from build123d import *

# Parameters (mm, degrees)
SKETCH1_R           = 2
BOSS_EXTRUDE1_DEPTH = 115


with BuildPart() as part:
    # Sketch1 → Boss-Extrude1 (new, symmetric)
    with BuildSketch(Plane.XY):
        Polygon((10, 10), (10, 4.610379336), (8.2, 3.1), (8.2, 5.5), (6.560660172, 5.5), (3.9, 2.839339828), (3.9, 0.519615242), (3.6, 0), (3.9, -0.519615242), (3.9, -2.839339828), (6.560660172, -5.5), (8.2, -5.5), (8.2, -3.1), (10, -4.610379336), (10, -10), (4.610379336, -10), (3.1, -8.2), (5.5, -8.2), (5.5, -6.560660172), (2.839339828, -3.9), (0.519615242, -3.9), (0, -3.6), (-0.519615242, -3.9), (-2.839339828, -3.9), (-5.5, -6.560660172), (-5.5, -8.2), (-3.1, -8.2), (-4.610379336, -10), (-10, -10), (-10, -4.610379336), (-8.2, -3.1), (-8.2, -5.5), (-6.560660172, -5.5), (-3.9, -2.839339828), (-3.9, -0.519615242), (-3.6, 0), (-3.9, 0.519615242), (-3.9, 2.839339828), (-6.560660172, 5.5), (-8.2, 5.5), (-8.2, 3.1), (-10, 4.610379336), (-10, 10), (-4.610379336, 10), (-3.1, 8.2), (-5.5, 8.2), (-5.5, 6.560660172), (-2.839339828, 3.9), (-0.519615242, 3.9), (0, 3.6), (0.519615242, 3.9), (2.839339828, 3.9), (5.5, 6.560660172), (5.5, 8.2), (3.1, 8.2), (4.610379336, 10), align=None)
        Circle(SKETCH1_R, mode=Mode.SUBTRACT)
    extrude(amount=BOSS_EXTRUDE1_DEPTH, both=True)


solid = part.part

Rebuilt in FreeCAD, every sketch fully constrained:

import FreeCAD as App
import Part
import Sketcher

V = App.Vector
Q = App.Units.Quantity

doc = App.newDocument("Part")
body = doc.addObject("PartDesign::Body", "Body")

# Sketch on XY plane
sketch1 = doc.addObject("Sketcher::SketchObject", "Sketch")
body.addObject(sketch1)
sketch1.AttachmentSupport = (doc.XY_Plane, [""])
sketch1.MapMode = "FlatFace"
sketch1.addGeometry(Part.LineSegment(V(10, 4.6, 0), V(10, 10, 0)), False)
sketch1.addGeometry(Part.LineSegment(V(10, 10, 0), V(4.6, 10, 0)), False)
sketch1.addGeometry(Part.LineSegment(V(4.6, 10, 0), V(3.1, 8.2, 0)), False)
sketch1.addGeometry(Part.LineSegment(V(3.1, 8.2, 0), V(5.5, 8.2, 0)), False)
sketch1.addGeometry(Part.LineSegment(V(5.5, 8.2, 0), V(5.5, 6.6, 0)), False)
sketch1.addGeometry(Part.LineSegment(V(5.5, 6.6, 0), V(2.8, 3.9, 0)), False)
sketch1.addGeometry(Part.LineSegment(V(2.8, 3.9, 0), V(0.5, 3.9, 0)), False)
sketch1.addGeometry(Part.LineSegment(V(0.5, 3.9, 0), V(0, 3.6, 0)), False)
sketch1.addGeometry(Part.LineSegment(V(0, 3.6, 0), V(-0.5, 3.9, 0)), False)
sketch1.addGeometry(Part.LineSegment(V(-0.5, 3.9, 0), V(-2.8, 3.9, 0)), False)
sketch1.addGeometry(Part.LineSegment(V(-2.8, 3.9, 0), V(-5.5, 6.6, 0)), False)
sketch1.addGeometry(Part.LineSegment(V(-5.5, 6.6, 0), V(-5.5, 8.2, 0)), False)
sketch1.addGeometry(Part.LineSegment(V(-5.5, 8.2, 0), V(-3.1, 8.2, 0)), False)
sketch1.addGeometry(Part.LineSegment(V(-3.1, 8.2, 0), V(-4.6, 10, 0)), False)
sketch1.addGeometry(Part.LineSegment(V(-4.6, 10, 0), V(-10, 10, 0)), False)
sketch1.addGeometry(Part.LineSegment(V(-10, 10, 0), V(-10, 4.6, 0)), False)
sketch1.addGeometry(Part.LineSegment(V(-10, 4.6, 0), V(-8.2, 3.1, 0)), False)
sketch1.addGeometry(Part.LineSegment(V(-8.2, 3.1, 0), V(-8.2, 5.5, 0)), False)
sketch1.addGeometry(Part.LineSegment(V(-8.2, 5.5, 0), V(-6.6, 5.5, 0)), False)
sketch1.addGeometry(Part.LineSegment(V(-6.6, 5.5, 0), V(-3.9, 2.8, 0)), False)
sketch1.addGeometry(Part.LineSegment(V(-3.9, 2.8, 0), V(-3.9, 0.5, 0)), False)
sketch1.addGeometry(Part.LineSegment(V(-3.9, 0.5, 0), V(-3.6, 0, 0)), False)
sketch1.addGeometry(Part.LineSegment(V(-3.6, 0, 0), V(-3.9, -0.5, 0)), False)
sketch1.addGeometry(Part.LineSegment(V(-3.9, -0.5, 0), V(-3.9, -2.8, 0)), False)
sketch1.addGeometry(Part.LineSegment(V(-3.9, -2.8, 0), V(-6.6, -5.5, 0)), False)
sketch1.addGeometry(Part.LineSegment(V(-6.6, -5.5, 0), V(-8.2, -5.5, 0)), False)
sketch1.addGeometry(Part.LineSegment(V(-8.2, -5.5, 0), V(-8.2, -3.1, 0)), False)
sketch1.addGeometry(Part.LineSegment(V(-8.2, -3.1, 0), V(-10, -4.6, 0)), False)
sketch1.addGeometry(Part.LineSegment(V(-10, -4.6, 0), V(-10, -10, 0)), False)
sketch1.addGeometry(Part.LineSegment(V(-10, -10, 0), V(-4.6, -10, 0)), False)
sketch1.addGeometry(Part.LineSegment(V(-4.6, -10, 0), V(-3.1, -8.2, 0)), False)
sketch1.addGeometry(Part.LineSegment(V(-3.1, -8.2, 0), V(-5.5, -8.2, 0)), False)
sketch1.addGeometry(Part.LineSegment(V(-5.5, -8.2, 0), V(-5.5, -6.6, 0)), False)
sketch1.addGeometry(Part.LineSegment(V(-5.5, -6.6, 0), V(-2.8, -3.9, 0)), False)
sketch1.addGeometry(Part.LineSegment(V(-2.8, -3.9, 0), V(-0.5, -3.9, 0)), False)
sketch1.addGeometry(Part.LineSegment(V(-0.5, -3.9, 0), V(0, -3.6, 0)), False)
sketch1.addGeometry(Part.LineSegment(V(0, -3.6, 0), V(0.5, -3.9, 0)), False)
sketch1.addGeometry(Part.LineSegment(V(0.5, -3.9, 0), V(2.8, -3.9, 0)), False)
sketch1.addGeometry(Part.LineSegment(V(2.8, -3.9, 0), V(5.5, -6.6, 0)), False)
sketch1.addGeometry(Part.LineSegment(V(5.5, -6.6, 0), V(5.5, -8.2, 0)), False)
sketch1.addGeometry(Part.LineSegment(V(5.5, -8.2, 0), V(3.1, -8.2, 0)), False)
sketch1.addGeometry(Part.LineSegment(V(3.1, -8.2, 0), V(4.6, -10, 0)), False)
sketch1.addGeometry(Part.LineSegment(V(4.6, -10, 0), V(10, -10, 0)), False)
sketch1.addGeometry(Part.LineSegment(V(10, -10, 0), V(10, -4.6, 0)), False)
sketch1.addGeometry(Part.LineSegment(V(10, -4.6, 0), V(8.2, -3.1, 0)), False)
sketch1.addGeometry(Part.LineSegment(V(8.2, -3.1, 0), V(8.2, -5.5, 0)), False)
sketch1.addGeometry(Part.LineSegment(V(8.2, -5.5, 0), V(6.6, -5.5, 0)), False)
sketch1.addGeometry(Part.LineSegment(V(6.6, -5.5, 0), V(3.9, -2.8, 0)), False)
sketch1.addGeometry(Part.LineSegment(V(3.9, -2.8, 0), V(3.9, -0.5, 0)), False)
sketch1.addGeometry(Part.LineSegment(V(3.9, -0.5, 0), V(3.6, 0, 0)), False)
sketch1.addGeometry(Part.LineSegment(V(3.6, 0, 0), V(3.9, 0.5, 0)), False)
sketch1.addGeometry(Part.LineSegment(V(3.9, 0.5, 0), V(3.9, 2.8, 0)), False)
sketch1.addGeometry(Part.LineSegment(V(3.9, 2.8, 0), V(6.6, 5.5, 0)), False)
sketch1.addGeometry(Part.LineSegment(V(6.6, 5.5, 0), V(8.2, 5.5, 0)), False)
sketch1.addGeometry(Part.LineSegment(V(8.2, 5.5, 0), V(8.2, 3.1, 0)), False)
sketch1.addGeometry(Part.LineSegment(V(8.2, 3.1, 0), V(10, 4.6, 0)), False)
sketch1.addGeometry(Part.Circle(V(0, 0, 0), V(0, 0, 1), 2), False)
sketch1.addConstraint(Sketcher.Constraint("Coincident", 0, 2, 1, 1))
sketch1.addConstraint(Sketcher.Constraint("Coincident", 1, 2, 2, 1))
sketch1.addConstraint(Sketcher.Constraint("Coincident", 2, 2, 3, 1))
sketch1.addConstraint(Sketcher.Constraint("Coincident", 3, 2, 4, 1))
sketch1.addConstraint(Sketcher.Constraint("Coincident", 4, 2, 5, 1))
sketch1.addConstraint(Sketcher.Constraint("Coincident", 5, 2, 6, 1))
sketch1.addConstraint(Sketcher.Constraint("Coincident", 6, 2, 7, 1))
sketch1.addConstraint(Sketcher.Constraint("Coincident", 7, 2, 8, 1))
sketch1.addConstraint(Sketcher.Constraint("Coincident", 8, 2, 9, 1))
sketch1.addConstraint(Sketcher.Constraint("Coincident", 9, 2, 10, 1))
sketch1.addConstraint(Sketcher.Constraint("Coincident", 10, 2, 11, 1))
sketch1.addConstraint(Sketcher.Constraint("Coincident", 11, 2, 12, 1))
sketch1.addConstraint(Sketcher.Constraint("Coincident", 12, 2, 13, 1))
sketch1.addConstraint(Sketcher.Constraint("Coincident", 13, 2, 14, 1))
sketch1.addConstraint(Sketcher.Constraint("Coincident", 14, 2, 15, 1))
sketch1.addConstraint(Sketcher.Constraint("Coincident", 15, 2, 16, 1))
sketch1.addConstraint(Sketcher.Constraint("Coincident", 16, 2, 17, 1))
sketch1.addConstraint(Sketcher.Constraint("Coincident", 17, 2, 18, 1))
sketch1.addConstraint(Sketcher.Constraint("Coincident", 18, 2, 19, 1))
sketch1.addConstraint(Sketcher.Constraint("Coincident", 19, 2, 20, 1))
sketch1.addConstraint(Sketcher.Constraint("Coincident", 20, 2, 21, 1))
sketch1.addConstraint(Sketcher.Constraint("Coincident", 21, 2, 22, 1))
sketch1.addConstraint(Sketcher.Constraint("Coincident", 22, 2, 23, 1))
sketch1.addConstraint(Sketcher.Constraint("Coincident", 23, 2, 24, 1))
sketch1.addConstraint(Sketcher.Constraint("Coincident", 24, 2, 25, 1))
sketch1.addConstraint(Sketcher.Constraint("Coincident", 25, 2, 26, 1))
sketch1.addConstraint(Sketcher.Constraint("Coincident", 26, 2, 27, 1))
sketch1.addConstraint(Sketcher.Constraint("Coincident", 27, 2, 28, 1))
sketch1.addConstraint(Sketcher.Constraint("Coincident", 28, 2, 29, 1))
sketch1.addConstraint(Sketcher.Constraint("Coincident", 29, 2, 30, 1))
sketch1.addConstraint(Sketcher.Constraint("Coincident", 30, 2, 31, 1))
sketch1.addConstraint(Sketcher.Constraint("Coincident", 31, 2, 32, 1))
sketch1.addConstraint(Sketcher.Constraint("Coincident", 32, 2, 33, 1))
sketch1.addConstraint(Sketcher.Constraint("Coincident", 33, 2, 34, 1))
sketch1.addConstraint(Sketcher.Constraint("Coincident", 34, 2, 35, 1))
sketch1.addConstraint(Sketcher.Constraint("Coincident", 35, 2, 36, 1))
sketch1.addConstraint(Sketcher.Constraint("Coincident", 36, 2, 37, 1))
sketch1.addConstraint(Sketcher.Constraint("Coincident", 37, 2, 38, 1))
sketch1.addConstraint(Sketcher.Constraint("Coincident", 38, 2, 39, 1))
sketch1.addConstraint(Sketcher.Constraint("Coincident", 39, 2, 40, 1))
sketch1.addConstraint(Sketcher.Constraint("Coincident", 40, 2, 41, 1))
sketch1.addConstraint(Sketcher.Constraint("Coincident", 41, 2, 42, 1))
sketch1.addConstraint(Sketcher.Constraint("Coincident", 42, 2, 43, 1))
sketch1.addConstraint(Sketcher.Constraint("Coincident", 43, 2, 44, 1))
sketch1.addConstraint(Sketcher.Constraint("Coincident", 44, 2, 45, 1))
sketch1.addConstraint(Sketcher.Constraint("Coincident", 45, 2, 46, 1))
sketch1.addConstraint(Sketcher.Constraint("Coincident", 46, 2, 47, 1))
sketch1.addConstraint(Sketcher.Constraint("Coincident", 47, 2, 48, 1))
sketch1.addConstraint(Sketcher.Constraint("Coincident", 48, 2, 49, 1))
sketch1.addConstraint(Sketcher.Constraint("Coincident", 49, 2, 50, 1))
sketch1.addConstraint(Sketcher.Constraint("Coincident", 50, 2, 51, 1))
sketch1.addConstraint(Sketcher.Constraint("Coincident", 51, 2, 52, 1))
sketch1.addConstraint(Sketcher.Constraint("Coincident", 52, 2, 53, 1))
sketch1.addConstraint(Sketcher.Constraint("Coincident", 53, 2, 54, 1))
sketch1.addConstraint(Sketcher.Constraint("Coincident", 54, 2, 55, 1))
sketch1.addConstraint(Sketcher.Constraint("Coincident", 55, 2, 0, 1))
sketch1.addConstraint(Sketcher.Constraint("Vertical", 0))
sketch1.addConstraint(Sketcher.Constraint("Horizontal", 1))
sketch1.addConstraint(Sketcher.Constraint("Horizontal", 3))
sketch1.addConstraint(Sketcher.Constraint("Vertical", 4))
sketch1.addConstraint(Sketcher.Constraint("Horizontal", 6))
sketch1.addConstraint(Sketcher.Constraint("Horizontal", 9))
sketch1.addConstraint(Sketcher.Constraint("Vertical", 11))
sketch1.addConstraint(Sketcher.Constraint("Horizontal", 12))
sketch1.addConstraint(Sketcher.Constraint("Horizontal", 14))
sketch1.addConstraint(Sketcher.Constraint("Vertical", 15))
sketch1.addConstraint(Sketcher.Constraint("Vertical", 17))
sketch1.addConstraint(Sketcher.Constraint("Horizontal", 18))
sketch1.addConstraint(Sketcher.Constraint("Vertical", 20))
sketch1.addConstraint(Sketcher.Constraint("Vertical", 23))
sketch1.addConstraint(Sketcher.Constraint("Horizontal", 25))
sketch1.addConstraint(Sketcher.Constraint("Vertical", 26))
sketch1.addConstraint(Sketcher.Constraint("Vertical", 28))
sketch1.addConstraint(Sketcher.Constraint("Horizontal", 29))
sketch1.addConstraint(Sketcher.Constraint("Horizontal", 31))
sketch1.addConstraint(Sketcher.Constraint("Vertical", 32))
sketch1.addConstraint(Sketcher.Constraint("Horizontal", 34))
sketch1.addConstraint(Sketcher.Constraint("Horizontal", 37))
sketch1.addConstraint(Sketcher.Constraint("Vertical", 39))
sketch1.addConstraint(Sketcher.Constraint("Horizontal", 40))
sketch1.addConstraint(Sketcher.Constraint("Horizontal", 42))
sketch1.addConstraint(Sketcher.Constraint("Vertical", 43))
sketch1.addConstraint(Sketcher.Constraint("Vertical", 45))
sketch1.addConstraint(Sketcher.Constraint("Horizontal", 46))
sketch1.addConstraint(Sketcher.Constraint("Vertical", 48))
sketch1.addConstraint(Sketcher.Constraint("Vertical", 51))
sketch1.addConstraint(Sketcher.Constraint("Horizontal", 53))
sketch1.addConstraint(Sketcher.Constraint("Vertical", 54))
sketch1.addConstraint(Sketcher.Constraint("Coincident", 56, 3, -1, 1))
sketch1.addConstraint(Sketcher.Constraint("Symmetric", 0, 2, 28, 2, -1, 1))
sketch1.addConstraint(Sketcher.Constraint("Symmetric", 2, 2, 30, 2, -1, 1))
sketch1.addConstraint(Sketcher.Constraint("Symmetric", 4, 2, 32, 2, -1, 1))
sketch1.addConstraint(Sketcher.Constraint("Symmetric", 5, 2, 33, 2, -1, 1))
sketch1.addConstraint(Sketcher.Constraint("Symmetric", 7, 2, 35, 2, -1, 1))
sketch1.addConstraint(Sketcher.Constraint("Symmetric", 8, 2, 36, 2, -1, 1))
sketch1.addConstraint(Sketcher.Constraint("Symmetric", 10, 2, 38, 2, -1, 1))
sketch1.addConstraint(Sketcher.Constraint("Symmetric", 12, 2, 40, 2, -1, 1))
sketch1.addConstraint(Sketcher.Constraint("Symmetric", 13, 2, 41, 2, -1, 1))
sketch1.addConstraint(Sketcher.Constraint("Symmetric", 15, 2, 43, 2, -1, 1))
sketch1.addConstraint(Sketcher.Constraint("Symmetric", 16, 2, 44, 2, -1, 1))
sketch1.addConstraint(Sketcher.Constraint("Symmetric", 18, 2, 46, 2, -1, 1))
sketch1.addConstraint(Sketcher.Constraint("Symmetric", 19, 2, 47, 2, -1, 1))
sketch1.addConstraint(Sketcher.Constraint("Symmetric", 21, 2, 49, 2, -1, 1))
sketch1.addConstraint(Sketcher.Constraint("Symmetric", 22, 2, 50, 2, -1, 1))
sketch1.addConstraint(Sketcher.Constraint("Symmetric", 24, 2, 52, 2, -1, 1))
sketch1.addConstraint(Sketcher.Constraint("Symmetric", 26, 2, 54, 2, -1, 1))
sketch1.addConstraint(Sketcher.Constraint("Symmetric", 6, 2, 8, 2, -2))
sketch1.addConstraint(Sketcher.Constraint("Symmetric", 4, 2, 10, 2, -2))
sketch1.addConstraint(Sketcher.Constraint("Symmetric", 2, 2, 12, 2, -2))
sketch1.addConstraint(Sketcher.Constraint("Symmetric", 1, 2, 13, 2, -2))
sketch1.addConstraint(Sketcher.Constraint("Symmetric", 27, 2, 43, 2, -2))
sketch1.addConstraint(Sketcher.Constraint("Symmetric", 26, 2, 44, 2, -2))
sketch1.addConstraint(Sketcher.Constraint("Symmetric", 24, 2, 46, 2, -2))
sketch1.addConstraint(Sketcher.Constraint("Symmetric", 23, 2, 47, 2, -2))
sketch1.addConstraint(Sketcher.Constraint("PointOnObject", 7, 2, -2))
sketch1.addConstraint(Sketcher.Constraint("PointOnObject", 21, 2, -1))
sketch1.addConstraint(Sketcher.Constraint("Perpendicular", 5, 10))
sketch1.addConstraint(Sketcher.Constraint("Perpendicular", 2, 16))
sketch1.addConstraint(Sketcher.Constraint("Parallel", 10, 19))
sketch1.addConstraint(Sketcher.Constraint("Perpendicular", 7, 21))
sketch1.addConstraint(Sketcher.Constraint("Perpendicular", 8, 22))
sketch1.addConstraint(Sketcher.Constraint("Perpendicular", 19, 24))
sketch1.addConstraint(Sketcher.Constraint("Perpendicular", 16, 30))
sketch1.addConstraint(Sketcher.Constraint("Perpendicular", 21, 35))
sketch1.addConstraint(Sketcher.Constraint("Perpendicular", 33, 38))
sketch1.addConstraint(Sketcher.Constraint("Perpendicular", 35, 49))
sketch1.addConstraint(Sketcher.Constraint("Perpendicular", 47, 52))
sketch1.addConstraint(Sketcher.Constraint("Perpendicular", 41, 55))
sketch1.addConstraint(Sketcher.Constraint("Equal", 42, 0))
sketch1.addConstraint(Sketcher.Constraint("Equal", 53, 4))
sketch1.addConstraint(Sketcher.Constraint("Equal", 40, 17))
sketch1.addConstraint(Sketcher.Constraint("Equal", 37, 20))
sketch1.addConstraint(Sketcher.Constraint("Equal", 13, 16))
sketch1.addConstraint(Sketcher.Constraint("Equal", 10, 19))
sketch1.addConstraint(Sketcher.Constraint("Equal", 8, 21))
sketch1.addConstraint(Sketcher.Constraint("Diameter", 56, Q("4 mm")))
sketch1.addConstraint(Sketcher.Constraint("Angle", 2, Q("-130 deg")))
sketch1.addConstraint(Sketcher.Constraint("Angle", 7, Q("-150 deg")))
sketch1.addConstraint(Sketcher.Constraint("DistanceX", 3, 1, 3, 2, Q("2.4 mm")))
sketch1.addConstraint(Sketcher.Constraint("DistanceX", -1, 1, 0, 2, Q("10 mm")))
sketch1.addConstraint(Sketcher.Constraint("Distance", 7, Q("0.6 mm")))
sketch1.addConstraint(Sketcher.Constraint("DistanceX", -1, 1, 2, 2, Q("3.1 mm")))
sketch1.addConstraint(Sketcher.Constraint("DistanceY", -1, 1, 2, 2, Q("8.2 mm")))
sketch1.addConstraint(Sketcher.Constraint("DistanceY", -1, 1, 5, 2, Q("3.9 mm")))
sketch1.addConstraint(Sketcher.Constraint("DistanceX", 18, 1, 18, 2, Q("1.63934 mm")))
pad1 = doc.addObject("PartDesign::Pad", "Pad")
body.addObject(pad1)
pad1.Profile = sketch1
pad1.Length = 230
pad1.Midplane = True

doc.recompute()
